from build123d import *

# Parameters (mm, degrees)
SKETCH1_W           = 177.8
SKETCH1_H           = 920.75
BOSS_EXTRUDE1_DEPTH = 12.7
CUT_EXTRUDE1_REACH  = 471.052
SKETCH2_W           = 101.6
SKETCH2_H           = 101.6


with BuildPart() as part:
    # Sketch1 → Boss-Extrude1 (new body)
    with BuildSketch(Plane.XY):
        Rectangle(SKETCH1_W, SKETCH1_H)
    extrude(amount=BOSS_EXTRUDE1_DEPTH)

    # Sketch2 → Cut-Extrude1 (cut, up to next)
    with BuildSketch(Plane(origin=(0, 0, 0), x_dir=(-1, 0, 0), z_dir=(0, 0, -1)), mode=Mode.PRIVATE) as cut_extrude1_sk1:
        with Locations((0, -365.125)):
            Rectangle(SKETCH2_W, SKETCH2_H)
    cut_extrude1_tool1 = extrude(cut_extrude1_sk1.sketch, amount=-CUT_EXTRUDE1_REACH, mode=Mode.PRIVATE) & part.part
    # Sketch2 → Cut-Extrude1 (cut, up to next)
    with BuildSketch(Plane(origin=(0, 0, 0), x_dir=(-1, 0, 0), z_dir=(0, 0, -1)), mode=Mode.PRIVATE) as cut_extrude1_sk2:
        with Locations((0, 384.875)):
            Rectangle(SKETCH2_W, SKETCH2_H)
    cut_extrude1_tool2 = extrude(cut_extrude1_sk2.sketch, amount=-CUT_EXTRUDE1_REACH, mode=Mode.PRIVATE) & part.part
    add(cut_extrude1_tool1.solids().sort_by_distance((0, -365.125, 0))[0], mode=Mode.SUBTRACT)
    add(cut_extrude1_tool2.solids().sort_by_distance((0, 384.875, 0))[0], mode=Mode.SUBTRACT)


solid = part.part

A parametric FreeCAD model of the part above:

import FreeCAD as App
import Part
import Sketcher

V = App.Vector
Q = App.Units.Quantity

doc = App.newDocument("Part")
body = doc.addObject("PartDesign::Body", "Body")

# Sketch on XY plane
sketch1 = body.newObject("Sketcher::SketchObject", "Sketch")
sketch1.AttachmentSupport = (doc.getObject("XY_Plane"), [""])
sketch1.MapMode = "FlatFace"
sketch1.addGeometry([
    Part.LineSegment(V(-89, 460, 0), V(-89, -460, 0)),
    Part.LineSegment(V(-89, -460, 0), V(89, -460, 0)),
    Part.LineSegment(V(89, -460, 0), V(89, 460, 0)),
    Part.LineSegment(V(89, 460, 0), V(-89, 460, 0)),
], False)
sketch1.addConstraint([
    Sketcher.Constraint("Coincident", 0, 2, 1, 1),
    Sketcher.Constraint("Coincident", 1, 2, 2, 1),
    Sketcher.Constraint("Coincident", 2, 2, 3, 1),
    Sketcher.Constraint("Coincident", 3, 2, 0, 1),
    Sketcher.Constraint("Vertical", 0),
    Sketcher.Constraint("Horizontal", 1),
    Sketcher.Constraint("Vertical", 2),
    Sketcher.Constraint("Horizontal", 3),
    Sketcher.Constraint("Symmetric", 0, 2, 2, 2, -1, 1),
    Sketcher.Constraint("DistanceX", 1, 1, 1, 2, Q("7 in")),
    Sketcher.Constraint("DistanceY", 0, 2, 0, 1, Q("36.25 in")),
])
pad1 = body.newObject("PartDesign::Pad", "Pad")
pad1.Profile = sketch1
pad1.Length = Q("0.5 in")

# Sketch on XY plane
sketch2 = body.newObject("Sketcher::SketchObject", "Sketch001")
sketch2.AttachmentSupport = (doc.getObject("XY_Plane"), [""])
sketch2.MapMode = "FlatFace"
sketch2.addGeometry([
    Part.LineSegment(V(51, -314, 0), V(51, -416, 0)),
    Part.LineSegment(V(51, -416, 0), V(-51, -416, 0)),
    Part.LineSegment(V(-51, -416, 0), V(-51, -314, 0)),
    Part.LineSegment(V(-51, -314, 0), V(51, -314, 0)),
], False)
sketch2.addConstraint([
    Sketcher.Constraint("Coincident", 0, 2, 1, 1),
    Sketcher.Constraint("Coincident", 1, 2, 2, 1),
    Sketcher.Constraint("Coincident", 2, 2, 3, 1),
    Sketcher.Constraint("Coincident", 3, 2, 0, 1),
    Sketcher.Constraint("Vertical", 0),
    Sketcher.Constraint("Horizontal", 1),
    Sketcher.Constraint("Vertical", 2),
    Sketcher.Constraint("Horizontal", 3),
    Sketcher.Constraint("Equal", 3, 0),
    Sketcher.Constraint("DistanceX", 1, 2, 1, 1, Q("4 in")),
    Sketcher.Constraint("DistanceX", -1, 1, 0, 2, Q("2 in")),
    Sketcher.Constraint("DistanceY", 0, 2, -1, 1, Q("16.375 in")),
])
pocket1 = body.newObject("PartDesign::Pocket", "Pocket")
pocket1.Profile = sketch2
pocket1.Type = "UpToFirst"
pocket1.Reversed = True

# Sketch on XY plane
sketch3 = body.newObject("Sketcher::SketchObject", "Sketch002")
sketch3.AttachmentSupport = (doc.getObject("XY_Plane"), [""])
sketch3.MapMode = "FlatFace"
sketch3.addGeometry([
    Part.LineSegment(V(51, 436, 0), V(51, 334, 0)),
    Part.LineSegment(V(51, 334, 0), V(-51, 334, 0)),
    Part.LineSegment(V(-51, 334, 0), V(-51, 436, 0)),
    Part.LineSegment(V(-51, 436, 0), V(51, 436, 0)),
], False)
sketch3.addConstraint([
    Sketcher.Constraint("Coincident", 0, 2, 1, 1),
    Sketcher.Constraint("Coincident", 1, 2, 2, 1),
    Sketcher.Constraint("Coincident", 2, 2, 3, 1),
    Sketcher.Constraint("Coincident", 3, 2, 0, 1),
    Sketcher.Constraint("Vertical", 0),
    Sketcher.Constraint("Horizontal", 1),
    Sketcher.Constraint("Vertical", 2),
    Sketcher.Constraint("Horizontal", 3),
    Sketcher.Constraint("Equal", 3, 0),
    Sketcher.Constraint("DistanceX", 1, 2, 1, 1, Q("4 in")),
    Sketcher.Constraint("DistanceX", -1, 1, 0, 2, Q("2 in")),
    Sketcher.Constraint("DistanceY", -1, 1, 0, 2, Q("334.075 mm")),
])
pocket2 = body.newObject("PartDesign::Pocket", "Pocket001")
pocket2.Profile = sketch3
pocket2.Type = "UpToFirst"
pocket2.Reversed = True

doc.recompute()
